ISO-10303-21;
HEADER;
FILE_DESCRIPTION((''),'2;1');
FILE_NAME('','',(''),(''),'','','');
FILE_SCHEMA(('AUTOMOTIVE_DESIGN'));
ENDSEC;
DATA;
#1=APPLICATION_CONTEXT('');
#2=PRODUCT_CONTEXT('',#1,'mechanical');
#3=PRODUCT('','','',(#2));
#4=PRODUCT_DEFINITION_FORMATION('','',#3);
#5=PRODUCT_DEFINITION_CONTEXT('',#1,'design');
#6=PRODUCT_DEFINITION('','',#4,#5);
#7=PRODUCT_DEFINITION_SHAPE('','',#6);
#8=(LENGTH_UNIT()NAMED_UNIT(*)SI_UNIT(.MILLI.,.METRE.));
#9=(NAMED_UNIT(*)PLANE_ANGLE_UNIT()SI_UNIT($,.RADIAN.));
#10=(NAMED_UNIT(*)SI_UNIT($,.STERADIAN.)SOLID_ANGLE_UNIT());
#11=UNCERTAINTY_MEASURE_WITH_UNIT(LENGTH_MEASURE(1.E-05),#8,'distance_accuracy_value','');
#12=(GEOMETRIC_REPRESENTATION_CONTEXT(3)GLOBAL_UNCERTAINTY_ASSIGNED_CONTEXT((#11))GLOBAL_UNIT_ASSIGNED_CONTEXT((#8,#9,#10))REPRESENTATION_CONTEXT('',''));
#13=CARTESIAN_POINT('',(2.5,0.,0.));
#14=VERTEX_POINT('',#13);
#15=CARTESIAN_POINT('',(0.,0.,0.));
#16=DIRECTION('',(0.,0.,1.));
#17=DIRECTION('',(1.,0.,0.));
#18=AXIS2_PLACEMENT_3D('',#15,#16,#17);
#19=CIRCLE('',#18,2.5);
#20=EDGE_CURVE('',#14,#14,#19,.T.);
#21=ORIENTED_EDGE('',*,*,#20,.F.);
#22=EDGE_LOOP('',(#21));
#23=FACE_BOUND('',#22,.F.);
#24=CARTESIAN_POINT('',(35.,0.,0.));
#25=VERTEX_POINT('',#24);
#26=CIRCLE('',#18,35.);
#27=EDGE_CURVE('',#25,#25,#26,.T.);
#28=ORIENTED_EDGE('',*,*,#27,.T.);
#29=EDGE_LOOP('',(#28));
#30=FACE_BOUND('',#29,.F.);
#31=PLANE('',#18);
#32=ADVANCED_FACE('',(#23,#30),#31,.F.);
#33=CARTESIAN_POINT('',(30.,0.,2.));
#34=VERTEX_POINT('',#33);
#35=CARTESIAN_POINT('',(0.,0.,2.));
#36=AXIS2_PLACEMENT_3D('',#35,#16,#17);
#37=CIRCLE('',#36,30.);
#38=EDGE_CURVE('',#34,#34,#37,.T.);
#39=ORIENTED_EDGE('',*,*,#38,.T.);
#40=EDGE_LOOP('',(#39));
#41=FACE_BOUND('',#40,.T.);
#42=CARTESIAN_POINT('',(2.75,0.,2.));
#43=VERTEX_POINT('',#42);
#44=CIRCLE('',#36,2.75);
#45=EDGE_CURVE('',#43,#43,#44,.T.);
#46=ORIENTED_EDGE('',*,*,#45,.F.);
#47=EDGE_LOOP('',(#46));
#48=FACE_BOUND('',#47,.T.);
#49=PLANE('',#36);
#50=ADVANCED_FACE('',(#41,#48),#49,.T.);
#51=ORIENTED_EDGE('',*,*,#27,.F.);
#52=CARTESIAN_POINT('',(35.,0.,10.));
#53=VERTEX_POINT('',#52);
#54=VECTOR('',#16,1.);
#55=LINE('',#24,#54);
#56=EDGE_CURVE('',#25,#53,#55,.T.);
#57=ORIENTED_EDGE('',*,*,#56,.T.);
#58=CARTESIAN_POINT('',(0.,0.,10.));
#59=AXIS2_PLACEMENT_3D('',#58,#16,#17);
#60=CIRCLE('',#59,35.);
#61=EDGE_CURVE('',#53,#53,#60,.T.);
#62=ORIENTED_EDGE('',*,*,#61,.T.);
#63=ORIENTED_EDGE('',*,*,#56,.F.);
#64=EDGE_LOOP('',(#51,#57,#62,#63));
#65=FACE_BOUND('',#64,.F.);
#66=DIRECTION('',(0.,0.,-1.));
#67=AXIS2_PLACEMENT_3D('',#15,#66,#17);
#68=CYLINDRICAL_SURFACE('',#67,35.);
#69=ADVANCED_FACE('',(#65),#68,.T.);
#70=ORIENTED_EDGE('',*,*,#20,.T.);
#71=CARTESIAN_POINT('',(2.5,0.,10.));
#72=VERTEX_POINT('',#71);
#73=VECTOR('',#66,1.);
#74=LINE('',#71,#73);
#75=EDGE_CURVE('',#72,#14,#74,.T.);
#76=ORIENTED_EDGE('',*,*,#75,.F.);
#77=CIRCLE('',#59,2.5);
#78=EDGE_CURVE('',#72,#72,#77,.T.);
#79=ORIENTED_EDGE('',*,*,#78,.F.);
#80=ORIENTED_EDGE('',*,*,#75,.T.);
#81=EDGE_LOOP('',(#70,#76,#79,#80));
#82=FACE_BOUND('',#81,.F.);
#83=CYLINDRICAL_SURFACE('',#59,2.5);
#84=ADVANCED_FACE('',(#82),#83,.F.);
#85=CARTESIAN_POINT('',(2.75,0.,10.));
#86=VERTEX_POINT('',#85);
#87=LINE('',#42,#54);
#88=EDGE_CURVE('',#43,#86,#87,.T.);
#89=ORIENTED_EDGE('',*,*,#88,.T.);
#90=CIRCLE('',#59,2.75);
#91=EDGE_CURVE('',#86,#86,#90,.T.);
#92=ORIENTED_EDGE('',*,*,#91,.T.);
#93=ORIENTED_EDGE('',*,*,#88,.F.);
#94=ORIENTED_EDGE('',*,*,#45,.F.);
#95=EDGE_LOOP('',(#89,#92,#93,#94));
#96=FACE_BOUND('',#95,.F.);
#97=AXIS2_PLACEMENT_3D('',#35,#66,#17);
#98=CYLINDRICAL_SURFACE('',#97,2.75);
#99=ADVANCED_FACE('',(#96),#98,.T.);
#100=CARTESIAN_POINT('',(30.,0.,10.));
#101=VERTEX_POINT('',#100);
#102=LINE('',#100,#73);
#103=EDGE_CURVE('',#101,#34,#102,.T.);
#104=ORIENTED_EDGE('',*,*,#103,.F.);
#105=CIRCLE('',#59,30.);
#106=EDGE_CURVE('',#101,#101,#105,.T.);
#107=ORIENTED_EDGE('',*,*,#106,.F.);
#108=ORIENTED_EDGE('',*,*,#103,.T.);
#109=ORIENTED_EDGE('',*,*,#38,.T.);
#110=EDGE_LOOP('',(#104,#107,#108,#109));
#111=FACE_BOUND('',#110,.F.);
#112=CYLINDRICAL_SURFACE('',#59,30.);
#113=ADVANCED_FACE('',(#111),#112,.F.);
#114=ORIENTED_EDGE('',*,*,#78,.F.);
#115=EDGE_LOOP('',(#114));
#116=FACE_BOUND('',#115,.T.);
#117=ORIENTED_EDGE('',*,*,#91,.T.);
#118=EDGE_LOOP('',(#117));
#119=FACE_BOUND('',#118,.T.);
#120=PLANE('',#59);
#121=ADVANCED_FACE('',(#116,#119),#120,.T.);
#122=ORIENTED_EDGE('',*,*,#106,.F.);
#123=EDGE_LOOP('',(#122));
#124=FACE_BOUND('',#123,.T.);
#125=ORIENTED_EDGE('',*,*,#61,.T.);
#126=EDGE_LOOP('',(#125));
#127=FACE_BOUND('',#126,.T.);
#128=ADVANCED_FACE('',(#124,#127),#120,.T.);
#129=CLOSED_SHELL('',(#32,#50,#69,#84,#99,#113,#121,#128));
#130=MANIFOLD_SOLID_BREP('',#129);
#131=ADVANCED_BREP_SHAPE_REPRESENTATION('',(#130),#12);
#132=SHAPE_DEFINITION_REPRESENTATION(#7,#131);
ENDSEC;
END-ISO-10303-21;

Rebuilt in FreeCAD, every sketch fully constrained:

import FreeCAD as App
import Part
import Sketcher

V = App.Vector

doc = App.newDocument("Part")
body = doc.addObject("PartDesign::Body", "Body")

sketch1 = body.newObject("Sketcher::SketchObject", "Sketch")
sketch1.AttachmentSupport = (doc.getObject("XY_Plane"), [""])
sketch1.MapMode = "FlatFace"
sketch1.addGeometry(Part.Circle(V(0, 0, 0), V(0, 0, 1), 35), False)
sketch1.addConstraint(Sketcher.Constraint("Coincident", 0, 3, -1, 1))
sketch1.addConstraint(Sketcher.Constraint("Diameter", 0, 70.0))
pad1 = body.newObject("PartDesign::Pad", "Pad")
pad1.Profile = sketch1
pad1.Length = 10

sketch2 = body.newObject("Sketcher::SketchObject", "Sketch001")
sketch2.AttachmentSupport = (doc.getObject("XY_Plane"), [""])
sketch2.MapMode = "FlatFace"
sketch2.AttachmentOffset = App.Placement(V(0, 0, 10), App.Rotation())
sketch2.addGeometry(Part.Circle(V(0, 0, 0), V(0, 0, 1), 30), False)
sketch2.addConstraint(Sketcher.Constraint("Coincident", 0, 3, -1, 1))
sketch2.addConstraint(Sketcher.Constraint("Diameter", 0, 60.0))
pocket1 = body.newObject("PartDesign::Pocket", "Pocket")
pocket1.Profile = sketch2
pocket1.Length = 8

sketch3 = body.newObject("Sketcher::SketchObject", "Sketch002")
sketch3.AttachmentSupport = (doc.getObject("XY_Plane"), [""])
sketch3.MapMode = "FlatFace"
sketch3.AttachmentOffset = App.Placement(V(0, 0, 2), App.Rotation())
sketch3.addGeometry(Part.Circle(V(0, 0, 0), V(0, 0, 1), 2.75), False)
sketch3.addConstraint(Sketcher.Constraint("Coincident", 0, 3, -1, 1))
sketch3.addConstraint(Sketcher.Constraint("Diameter", 0, 5.5))
pad2 = body.newObject("PartDesign::Pad", "Pad001")
pad2.Profile = sketch3
pad2.Length = 8

sketch4 = body.newObject("Sketcher::SketchObject", "Sketch003")
sketch4.AttachmentSupport = (doc.getObject("XY_Plane"), [""])
sketch4.MapMode = "FlatFace"
sketch4.AttachmentOffset = App.Placement(V(0, 0, 10), App.Rotation())
sketch4.addGeometry(Part.Circle(V(0, 0, 0), V(0, 0, 1), 2.5), False)
sketch4.addConstraint(Sketcher.Constraint("Coincident", 0, 3, -1, 1))
sketch4.addConstraint(Sketcher.Constraint("Diameter", 0, 5.0))
pocket2 = body.newObject("PartDesign::Pocket", "Pocket001")
pocket2.Profile = sketch4
pocket2.Length = 10

doc.recompute()
